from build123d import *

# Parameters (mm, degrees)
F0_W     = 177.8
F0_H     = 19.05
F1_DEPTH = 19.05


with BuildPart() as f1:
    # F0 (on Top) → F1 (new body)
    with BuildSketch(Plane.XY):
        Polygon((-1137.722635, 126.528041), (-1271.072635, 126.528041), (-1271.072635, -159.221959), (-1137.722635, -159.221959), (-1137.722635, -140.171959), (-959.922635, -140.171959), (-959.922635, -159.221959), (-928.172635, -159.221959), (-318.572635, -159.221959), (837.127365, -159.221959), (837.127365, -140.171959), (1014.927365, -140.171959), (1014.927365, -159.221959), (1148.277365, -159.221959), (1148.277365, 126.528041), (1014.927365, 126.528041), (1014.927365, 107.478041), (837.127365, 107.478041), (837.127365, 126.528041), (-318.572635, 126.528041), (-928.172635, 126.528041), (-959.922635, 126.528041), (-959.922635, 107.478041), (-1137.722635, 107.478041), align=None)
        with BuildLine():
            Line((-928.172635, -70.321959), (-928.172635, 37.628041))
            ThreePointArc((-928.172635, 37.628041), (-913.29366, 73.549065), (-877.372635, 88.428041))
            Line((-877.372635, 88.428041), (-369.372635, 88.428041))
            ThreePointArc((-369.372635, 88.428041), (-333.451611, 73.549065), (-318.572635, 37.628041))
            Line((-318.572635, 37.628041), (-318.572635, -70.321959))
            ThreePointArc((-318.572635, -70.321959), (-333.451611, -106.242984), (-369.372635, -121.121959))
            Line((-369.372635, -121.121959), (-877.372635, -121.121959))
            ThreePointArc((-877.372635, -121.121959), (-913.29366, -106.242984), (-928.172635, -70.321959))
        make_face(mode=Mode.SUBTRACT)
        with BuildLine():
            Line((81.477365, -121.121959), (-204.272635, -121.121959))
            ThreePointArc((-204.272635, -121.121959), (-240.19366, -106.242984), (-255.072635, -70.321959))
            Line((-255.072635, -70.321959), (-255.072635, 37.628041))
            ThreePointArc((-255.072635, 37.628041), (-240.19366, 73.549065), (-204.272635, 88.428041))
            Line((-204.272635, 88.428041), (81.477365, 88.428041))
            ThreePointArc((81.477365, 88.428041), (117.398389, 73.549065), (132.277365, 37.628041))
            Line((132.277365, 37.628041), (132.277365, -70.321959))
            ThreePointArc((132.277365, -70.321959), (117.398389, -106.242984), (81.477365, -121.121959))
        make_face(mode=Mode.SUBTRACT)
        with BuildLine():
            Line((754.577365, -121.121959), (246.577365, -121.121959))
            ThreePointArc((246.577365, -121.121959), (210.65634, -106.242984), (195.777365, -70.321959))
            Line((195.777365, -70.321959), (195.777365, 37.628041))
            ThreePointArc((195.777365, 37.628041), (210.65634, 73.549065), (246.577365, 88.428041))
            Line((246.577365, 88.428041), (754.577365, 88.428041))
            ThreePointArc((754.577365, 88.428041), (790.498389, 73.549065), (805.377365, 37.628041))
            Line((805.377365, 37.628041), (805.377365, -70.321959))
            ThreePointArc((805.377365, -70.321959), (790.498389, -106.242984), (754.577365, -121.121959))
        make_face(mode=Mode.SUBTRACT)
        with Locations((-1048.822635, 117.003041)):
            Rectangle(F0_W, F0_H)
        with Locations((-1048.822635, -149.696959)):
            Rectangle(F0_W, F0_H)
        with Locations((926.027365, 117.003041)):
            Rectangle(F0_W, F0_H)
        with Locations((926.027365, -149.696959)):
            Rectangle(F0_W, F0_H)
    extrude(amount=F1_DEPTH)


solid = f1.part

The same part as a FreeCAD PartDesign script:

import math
import FreeCAD as App
import Part
import Sketcher

V = App.Vector
Q = App.Units.Quantity

doc = App.newDocument("Part")
body = doc.addObject("PartDesign::Body", "Body")

# Sketch on XY plane
sketch1 = body.newObject("Sketcher::SketchObject", "Sketch")
sketch1.AttachmentSupport = (doc.getObject("XY_Plane"), [""])
sketch1.MapMode = "FlatFace"
sketch1.addGeometry([
    Part.LineSegment(V(-1271, 127, 0), V(-1271, -159, 0)),  # 0
    Part.LineSegment(V(-1271, -159, 0), V(1148, -159, 0)),  # 1
    Part.LineSegment(V(1148, -159, 0), V(1148, 127, 0)),  # 2
    Part.LineSegment(V(1148, 127, 0), V(-1271, 127, 0)),  # 3
    Part.ArcOfCircle(Part.Circle(V(-877, -70, 0), V(0, 0, 1), 51), math.radians(180), math.radians(270)),  # 4
    Part.LineSegment(V(-928, -70, 0), V(-928, 38, 0)),  # 5
    Part.ArcOfCircle(Part.Circle(V(-877, 38, 0), V(0, 0, 1), 51), math.radians(90), math.radians(180)),  # 6
    Part.LineSegment(V(-877, 88, 0), V(-369, 88, 0)),  # 7
    Part.ArcOfCircle(Part.Circle(V(-369, 38, 0), V(0, 0, 1), 51), math.radians(0), math.radians(90)),  # 8
    Part.LineSegment(V(-319, 38, 0), V(-319, -70, 0)),  # 9
    Part.ArcOfCircle(Part.Circle(V(-369, -70, 0), V(0, 0, 1), 51), math.radians(-90), math.radians(0)),  # 10
    Part.LineSegment(V(-369, -121, 0), V(-877, -121, 0)),  # 11
    Part.ArcOfCircle(Part.Circle(V(81, -70, 0), V(0, 0, 1), 51), math.radians(-90), math.radians(0)),  # 12
    Part.LineSegment(V(81, -121, 0), V(-204, -121, 0)),  # 13
    Part.ArcOfCircle(Part.Circle(V(-204, -70, 0), V(0, 0, 1), 51), math.radians(180), math.radians(270)),  # 14
    Part.LineSegment(V(-255, -70, 0), V(-255, 38, 0)),  # 15
    Part.ArcOfCircle(Part.Circle(V(-204, 38, 0), V(0, 0, 1), 51), math.radians(90), math.radians(180)),  # 16
    Part.LineSegment(V(-204, 88, 0), V(81, 88, 0)),  # 17
    Part.ArcOfCircle(Part.Circle(V(81, 38, 0), V(0, 0, 1), 51), math.radians(0), math.radians(90)),  # 18
    Part.LineSegment(V(132, 38, 0), V(132, -70, 0)),  # 19
    Part.ArcOfCircle(Part.Circle(V(755, -70, 0), V(0, 0, 1), 51), math.radians(-90), math.radians(0)),  # 20
    Part.LineSegment(V(755, -121, 0), V(247, -121, 0)),  # 21
    Part.ArcOfCircle(Part.Circle(V(247, -70, 0), V(0, 0, 1), 51), math.radians(180), math.radians(270)),  # 22
    Part.LineSegment(V(196, -70, 0), V(196, 38, 0)),  # 23
    Part.ArcOfCircle(Part.Circle(V(247, 38, 0), V(0, 0, 1), 51), math.radians(90), math.radians(180)),  # 24
    Part.LineSegment(V(247, 88, 0), V(755, 88, 0)),  # 25
    Part.ArcOfCircle(Part.Circle(V(755, 38, 0), V(0, 0, 1), 51), math.radians(0), math.radians(90)),  # 26
    Part.LineSegment(V(805, 38, 0), V(805, -70, 0)),  # 27
], False)
sketch1.addConstraint([
    Sketcher.Constraint("Coincident", 0, 2, 1, 1),
    Sketcher.Constraint("Coincident", 1, 2, 2, 1),
    Sketcher.Constraint("Coincident", 2, 2, 3, 1),
    Sketcher.Constraint("Coincident", 3, 2, 0, 1),
    Sketcher.Constraint("Tangent", 4, 1, 5, 1),
    Sketcher.Constraint("Tangent", 5, 2, 6, 2),
    Sketcher.Constraint("Tangent", 6, 1, 7, 1),
    Sketcher.Constraint("Tangent", 7, 2, 8, 2),
    Sketcher.Constraint("Tangent", 8, 1, 9, 1),
    Sketcher.Constraint("Tangent", 9, 2, 10, 2),
    Sketcher.Constraint("Tangent", 10, 1, 11, 1),
    Sketcher.Constraint("Tangent", 11, 2, 4, 2),
    Sketcher.Constraint("Tangent", 12, 1, 13, 1),
    Sketcher.Constraint("Tangent", 13, 2, 14, 2),
    Sketcher.Constraint("Tangent", 14, 1, 15, 1),
    Sketcher.Constraint("Tangent", 15, 2, 16, 2),
    Sketcher.Constraint("Tangent", 16, 1, 17, 1),
    Sketcher.Constraint("Tangent", 17, 2, 18, 2),
    Sketcher.Constraint("Tangent", 18, 1, 19, 1),
    Sketcher.Constraint("Tangent", 19, 2, 12, 2),
    Sketcher.Constraint("Tangent", 20, 1, 21, 1),
    Sketcher.Constraint("Tangent", 21, 2, 22, 2),
    Sketcher.Constraint("Tangent", 22, 1, 23, 1),
    Sketcher.Constraint("Tangent", 23, 2, 24, 2),
    Sketcher.Constraint("Tangent", 24, 1, 25, 1),
    Sketcher.Constraint("Tangent", 25, 2, 26, 2),
    Sketcher.Constraint("Tangent", 26, 1, 27, 1),
    Sketcher.Constraint("Tangent", 27, 2, 20, 2),
    Sketcher.Constraint("Vertical", 0),
    Sketcher.Constraint("Horizontal", 1),
    Sketcher.Constraint("Vertical", 2),
    Sketcher.Constraint("Horizontal", 3),
    Sketcher.Constraint("Vertical", 5),
    Sketcher.Constraint("Horizontal", 7),
    Sketcher.Constraint("Vertical", 9),
    Sketcher.Constraint("Horizontal", 11),
    Sketcher.Constraint("Horizontal", 13),
    Sketcher.Constraint("Vertical", 15),
    Sketcher.Constraint("Horizontal", 17),
    Sketcher.Constraint("Vertical", 19),
    Sketcher.Constraint("Horizontal", 21),
    Sketcher.Constraint("Vertical", 23),
    Sketcher.Constraint("Horizontal", 25),
    Sketcher.Constraint("Vertical", 27),
    Sketcher.Constraint("Equal", 4, 6),
    Sketcher.Constraint("Equal", 6, 8),
    Sketcher.Constraint("Equal", 8, 10),
    Sketcher.Constraint("Equal", 10, 12),
    Sketcher.Constraint("Equal", 12, 14),
    Sketcher.Constraint("Equal", 14, 16),
    Sketcher.Constraint("Equal", 16, 18),
    Sketcher.Constraint("Equal", 18, 20),
    Sketcher.Constraint("Equal", 20, 22),
    Sketcher.Constraint("Equal", 22, 24),
    Sketcher.Constraint("Equal", 24, 26),
    Sketcher.Constraint("Horizontal", 10, 3, 12, 3),
    Sketcher.Constraint("Horizontal", 8, 3, 16, 3),
    Sketcher.Constraint("Horizontal", 14, 3, 20, 3),
    Sketcher.Constraint("Horizontal", 18, 3, 24, 3),
    Sketcher.Constraint("Equal", 11, 21),
    Sketcher.Constraint("Equal", 17, 0),
    Sketcher.Constraint("Radius", 4, Q("1.9999999 in")),
    Sketcher.Constraint("DistanceX", 7, 1, 7, 2, Q("20 in")),
    Sketcher.Constraint("DistanceX", 0, 2, 14, 3, Q("41.9999999 in")),
    Sketcher.Constraint("DistanceX", 12, 3, 1, 2, Q("42 in")),
    Sketcher.Constraint("DistanceX", 1, 1, 1, 2, Q("95.25 in")),
    Sketcher.Constraint("DistanceY", 5, 1, 5, 2, Q("4.25 in")),
    Sketcher.Constraint("DistanceX", 10, 3, 14, 3, Q("6.4999999 in")),
    Sketcher.Constraint("DistanceX", 12, 3, 20, 3, Q("26.5 in")),
    Sketcher.Constraint("DistanceY", 0, 2, 4, 3, Q("3.4999999 in")),
    Sketcher.Constraint("DistanceY", 4, 3, -1, 1, 70.321961),
    Sketcher.Constraint("DistanceX", 4, 3, -1, 1, 877.372637),
])
pad1 = body.newObject("PartDesign::Pad", "Pad")
pad1.Profile = sketch1
pad1.Length = Q("0.75 in")

doc.recompute()
